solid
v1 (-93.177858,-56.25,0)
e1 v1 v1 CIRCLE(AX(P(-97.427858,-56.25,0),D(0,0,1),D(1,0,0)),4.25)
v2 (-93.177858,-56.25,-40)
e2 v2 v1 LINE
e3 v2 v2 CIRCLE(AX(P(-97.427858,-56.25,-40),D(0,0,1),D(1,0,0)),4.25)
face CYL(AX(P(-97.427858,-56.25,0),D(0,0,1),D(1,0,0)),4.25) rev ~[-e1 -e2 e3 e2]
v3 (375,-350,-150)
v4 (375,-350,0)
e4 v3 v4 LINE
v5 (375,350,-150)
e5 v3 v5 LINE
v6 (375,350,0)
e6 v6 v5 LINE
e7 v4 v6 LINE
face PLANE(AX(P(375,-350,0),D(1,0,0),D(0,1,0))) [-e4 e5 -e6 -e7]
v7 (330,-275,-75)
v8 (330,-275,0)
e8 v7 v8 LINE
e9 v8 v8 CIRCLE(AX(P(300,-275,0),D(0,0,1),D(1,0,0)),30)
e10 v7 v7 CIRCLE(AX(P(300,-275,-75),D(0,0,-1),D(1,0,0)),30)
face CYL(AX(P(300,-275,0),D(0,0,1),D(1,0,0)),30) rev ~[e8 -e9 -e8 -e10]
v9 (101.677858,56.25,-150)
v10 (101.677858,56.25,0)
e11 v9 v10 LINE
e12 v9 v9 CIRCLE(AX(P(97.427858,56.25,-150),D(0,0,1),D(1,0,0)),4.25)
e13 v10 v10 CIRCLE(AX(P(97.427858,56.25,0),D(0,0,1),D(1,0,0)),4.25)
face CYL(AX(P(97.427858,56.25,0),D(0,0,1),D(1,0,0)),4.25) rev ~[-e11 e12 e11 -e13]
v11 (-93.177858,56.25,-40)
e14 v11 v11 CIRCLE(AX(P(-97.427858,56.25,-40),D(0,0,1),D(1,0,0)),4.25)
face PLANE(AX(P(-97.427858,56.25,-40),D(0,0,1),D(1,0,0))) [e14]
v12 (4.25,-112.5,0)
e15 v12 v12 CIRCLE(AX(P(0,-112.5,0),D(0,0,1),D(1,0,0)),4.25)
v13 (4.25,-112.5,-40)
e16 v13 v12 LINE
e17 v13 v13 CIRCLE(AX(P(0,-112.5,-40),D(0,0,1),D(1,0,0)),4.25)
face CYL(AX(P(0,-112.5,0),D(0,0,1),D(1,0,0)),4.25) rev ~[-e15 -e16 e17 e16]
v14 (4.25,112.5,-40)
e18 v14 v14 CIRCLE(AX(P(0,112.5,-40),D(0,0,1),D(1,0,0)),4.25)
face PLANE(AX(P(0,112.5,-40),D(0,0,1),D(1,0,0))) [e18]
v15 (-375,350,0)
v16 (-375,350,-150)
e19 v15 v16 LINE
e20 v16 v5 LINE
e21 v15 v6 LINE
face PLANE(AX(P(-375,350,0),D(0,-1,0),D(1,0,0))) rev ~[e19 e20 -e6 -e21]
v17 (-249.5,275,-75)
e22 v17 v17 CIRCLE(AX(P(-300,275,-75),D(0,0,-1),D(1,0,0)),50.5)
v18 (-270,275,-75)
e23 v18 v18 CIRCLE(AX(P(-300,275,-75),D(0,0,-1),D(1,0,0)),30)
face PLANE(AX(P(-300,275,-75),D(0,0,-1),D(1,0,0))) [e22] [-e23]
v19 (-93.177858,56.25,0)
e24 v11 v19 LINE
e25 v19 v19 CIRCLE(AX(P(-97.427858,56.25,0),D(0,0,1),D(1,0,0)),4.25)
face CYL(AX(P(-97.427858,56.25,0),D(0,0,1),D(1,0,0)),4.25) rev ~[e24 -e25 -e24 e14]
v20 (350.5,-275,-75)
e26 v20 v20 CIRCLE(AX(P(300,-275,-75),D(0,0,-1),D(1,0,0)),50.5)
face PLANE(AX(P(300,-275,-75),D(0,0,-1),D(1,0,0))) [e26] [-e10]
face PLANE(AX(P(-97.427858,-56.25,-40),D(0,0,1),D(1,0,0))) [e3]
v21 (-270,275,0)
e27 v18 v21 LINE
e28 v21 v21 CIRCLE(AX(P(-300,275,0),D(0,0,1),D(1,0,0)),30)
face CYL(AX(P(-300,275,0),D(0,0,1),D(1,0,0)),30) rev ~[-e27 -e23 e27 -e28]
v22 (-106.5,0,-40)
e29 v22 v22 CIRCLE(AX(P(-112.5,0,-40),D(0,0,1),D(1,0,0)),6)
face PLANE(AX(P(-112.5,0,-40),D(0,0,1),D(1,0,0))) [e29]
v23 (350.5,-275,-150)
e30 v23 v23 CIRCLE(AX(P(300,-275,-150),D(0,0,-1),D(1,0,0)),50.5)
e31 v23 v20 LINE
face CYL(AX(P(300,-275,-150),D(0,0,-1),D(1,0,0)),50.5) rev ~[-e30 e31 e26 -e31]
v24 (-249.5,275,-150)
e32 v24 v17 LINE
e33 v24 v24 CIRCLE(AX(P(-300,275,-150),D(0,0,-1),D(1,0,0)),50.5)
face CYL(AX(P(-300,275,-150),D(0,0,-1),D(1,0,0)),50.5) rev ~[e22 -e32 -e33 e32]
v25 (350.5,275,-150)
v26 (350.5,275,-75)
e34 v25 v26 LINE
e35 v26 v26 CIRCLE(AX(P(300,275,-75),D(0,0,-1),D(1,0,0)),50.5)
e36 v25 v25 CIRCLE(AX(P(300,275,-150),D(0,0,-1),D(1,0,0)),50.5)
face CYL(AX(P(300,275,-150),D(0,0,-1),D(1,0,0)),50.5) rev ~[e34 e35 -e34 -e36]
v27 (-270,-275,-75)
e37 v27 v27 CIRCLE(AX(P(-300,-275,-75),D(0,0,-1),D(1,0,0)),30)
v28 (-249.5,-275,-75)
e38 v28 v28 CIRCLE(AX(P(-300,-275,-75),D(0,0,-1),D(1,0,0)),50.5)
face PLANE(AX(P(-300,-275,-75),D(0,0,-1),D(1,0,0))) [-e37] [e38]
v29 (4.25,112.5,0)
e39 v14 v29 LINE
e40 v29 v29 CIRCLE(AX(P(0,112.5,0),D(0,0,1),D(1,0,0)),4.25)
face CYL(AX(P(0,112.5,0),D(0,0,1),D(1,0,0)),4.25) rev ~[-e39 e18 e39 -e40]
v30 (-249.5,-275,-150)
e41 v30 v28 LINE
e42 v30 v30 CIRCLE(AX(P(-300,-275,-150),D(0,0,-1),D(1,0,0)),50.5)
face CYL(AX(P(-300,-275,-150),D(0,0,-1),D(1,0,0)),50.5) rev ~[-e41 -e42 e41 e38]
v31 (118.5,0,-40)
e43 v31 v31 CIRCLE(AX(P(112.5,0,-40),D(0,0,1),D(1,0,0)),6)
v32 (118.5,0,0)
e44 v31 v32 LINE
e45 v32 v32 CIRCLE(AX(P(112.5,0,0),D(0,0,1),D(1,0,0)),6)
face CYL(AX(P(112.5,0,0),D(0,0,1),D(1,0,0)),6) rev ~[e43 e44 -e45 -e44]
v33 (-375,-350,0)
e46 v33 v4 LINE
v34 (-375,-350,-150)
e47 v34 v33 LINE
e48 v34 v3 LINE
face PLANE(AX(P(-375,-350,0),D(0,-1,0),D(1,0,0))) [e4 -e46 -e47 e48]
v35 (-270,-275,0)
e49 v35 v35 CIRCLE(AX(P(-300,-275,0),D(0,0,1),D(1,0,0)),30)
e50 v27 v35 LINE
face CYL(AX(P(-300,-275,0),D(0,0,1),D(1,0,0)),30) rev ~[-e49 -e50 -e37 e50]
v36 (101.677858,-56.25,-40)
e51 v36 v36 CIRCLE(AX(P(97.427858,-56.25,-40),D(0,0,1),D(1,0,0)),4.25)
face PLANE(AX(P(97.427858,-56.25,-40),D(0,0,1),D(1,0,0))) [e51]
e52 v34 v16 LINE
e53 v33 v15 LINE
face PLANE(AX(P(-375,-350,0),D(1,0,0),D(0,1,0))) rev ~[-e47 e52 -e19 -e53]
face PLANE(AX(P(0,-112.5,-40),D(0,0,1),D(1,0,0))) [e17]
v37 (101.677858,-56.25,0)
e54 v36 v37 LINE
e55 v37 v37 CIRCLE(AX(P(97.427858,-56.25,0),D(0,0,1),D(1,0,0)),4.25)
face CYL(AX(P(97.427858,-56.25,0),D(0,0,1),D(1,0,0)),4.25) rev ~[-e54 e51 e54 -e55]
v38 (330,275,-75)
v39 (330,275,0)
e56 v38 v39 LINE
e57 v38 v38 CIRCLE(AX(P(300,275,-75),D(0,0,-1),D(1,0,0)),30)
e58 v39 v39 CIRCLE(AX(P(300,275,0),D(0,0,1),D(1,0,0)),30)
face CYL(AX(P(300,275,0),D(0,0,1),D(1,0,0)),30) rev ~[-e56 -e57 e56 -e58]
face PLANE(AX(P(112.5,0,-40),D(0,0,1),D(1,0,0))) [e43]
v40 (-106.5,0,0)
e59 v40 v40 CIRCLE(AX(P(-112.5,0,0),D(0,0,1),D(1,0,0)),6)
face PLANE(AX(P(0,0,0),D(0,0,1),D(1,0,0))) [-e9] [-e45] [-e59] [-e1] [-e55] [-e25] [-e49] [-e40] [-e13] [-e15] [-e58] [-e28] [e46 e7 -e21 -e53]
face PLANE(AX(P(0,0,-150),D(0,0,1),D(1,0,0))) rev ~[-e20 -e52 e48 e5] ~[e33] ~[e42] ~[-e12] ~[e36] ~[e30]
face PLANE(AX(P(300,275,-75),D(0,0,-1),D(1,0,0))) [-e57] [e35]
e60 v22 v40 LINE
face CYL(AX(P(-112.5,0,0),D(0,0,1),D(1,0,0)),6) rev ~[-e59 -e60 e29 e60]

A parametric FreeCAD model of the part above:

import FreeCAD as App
import Part
import Sketcher

V = App.Vector

doc = App.newDocument("Part")
body = doc.addObject("PartDesign::Body", "Body")

sketch1 = body.newObject("Sketcher::SketchObject", "Sketch")
sketch1.AttachmentSupport = (doc.getObject("XY_Plane"), [""])
sketch1.MapMode = "FlatFace"
sketch1.addGeometry(Part.LineSegment(V(-375, 350, 0), V(-375, -350, 0)), False)
sketch1.addGeometry(Part.LineSegment(V(-375, -350, 0), V(375, -350, 0)), False)
sketch1.addGeometry(Part.LineSegment(V(375, -350, 0), V(375, 350, 0)), False)
sketch1.addGeometry(Part.LineSegment(V(375, 350, 0), V(-375, 350, 0)), False)
sketch1.addGeometry(Part.Circle(V(-300, -275, 0), V(0, 0, 1), 30), False)
sketch1.addGeometry(Part.Circle(V(300, -275, 0), V(0, 0, 1), 30), False)
sketch1.addGeometry(Part.Circle(V(-300, 275, 0), V(0, 0, 1), 30), False)
sketch1.addGeometry(Part.Circle(V(97.4, 56.2, 0), V(0, 0, 1), 4.2), False)
sketch1.addGeometry(Part.Circle(V(300, 275, 0), V(0, 0, 1), 30), False)
sketch1.addConstraint(Sketcher.Constraint("Coincident", 0, 2, 1, 1))
sketch1.addConstraint(Sketcher.Constraint("Coincident", 1, 2, 2, 1))
sketch1.addConstraint(Sketcher.Constraint("Coincident", 2, 2, 3, 1))
sketch1.addConstraint(Sketcher.Constraint("Coincident", 3, 2, 0, 1))
sketch1.addConstraint(Sketcher.Constraint("Vertical", 0))
sketch1.addConstraint(Sketcher.Constraint("Horizontal", 1))
sketch1.addConstraint(Sketcher.Constraint("Vertical", 2))
sketch1.addConstraint(Sketcher.Constraint("Horizontal", 3))
sketch1.addConstraint(Sketcher.Constraint("Equal", 4, 5))
sketch1.addConstraint(Sketcher.Constraint("Equal", 5, 6))
sketch1.addConstraint(Sketcher.Constraint("Equal", 6, 8))
sketch1.addConstraint(Sketcher.Constraint("Symmetric", 5, 3, 6, 3, -1, 1))
sketch1.addConstraint(Sketcher.Constraint("Symmetric", 4, 3, 8, 3, -1, 1))
sketch1.addConstraint(Sketcher.Constraint("Symmetric", 0, 2, 2, 2, -1, 1))
sketch1.addConstraint(Sketcher.Constraint("Symmetric", 4, 3, 5, 3, -2))
sketch1.addConstraint(Sketcher.Constraint("Diameter", 4, 60.0))
sketch1.addConstraint(Sketcher.Constraint("Diameter", 7, 8.5))
sketch1.addConstraint(Sketcher.Constraint("DistanceX", 1, 1, 1, 2, 750.0))
sketch1.addConstraint(Sketcher.Constraint("DistanceY", 0, 2, 0, 1, 700.0))
sketch1.addConstraint(Sketcher.Constraint("DistanceX", 4, 3, -1, 1, 300.0))
sketch1.addConstraint(Sketcher.Constraint("DistanceY", 4, 3, -1, 1, 275.0))
sketch1.addConstraint(Sketcher.Constraint("DistanceY", -1, 1, 7, 3, 56.25))
sketch1.addConstraint(Sketcher.Constraint("DistanceX", -1, 1, 7, 3, 97.427858))
pad1 = body.newObject("PartDesign::Pad", "Pad")
pad1.Profile = sketch1
pad1.Length = 150
pad1.Reversed = True

sketch2 = body.newObject("Sketcher::SketchObject", "Sketch001")
sketch2.AttachmentSupport = (doc.getObject("XY_Plane"), [""])
sketch2.MapMode = "FlatFace"
sketch2.addGeometry(Part.Circle(V(-112.5, 0, 0), V(0, 0, 1), 6), False)
sketch2.addGeometry(Part.Circle(V(-97.4, 56.2, 0), V(0, 0, 1), 4.2), False)
sketch2.addGeometry(Part.Circle(V(0, 112.5, 0), V(0, 0, 1), 4.2), False)
sketch2.addGeometry(Part.Circle(V(97.4, 56.2, 0), V(0, 0, 1), 4.2), False)
sketch2.addGeometry(Part.Circle(V(112.5, 0, 0), V(0, 0, 1), 6), False)
sketch2.addGeometry(Part.Circle(V(97.4, -56.2, 0), V(0, 0, 1), 4.2), False)
sketch2.addGeometry(Part.Circle(V(0, -112.5, 0), V(0, 0, 1), 4.2), False)
sketch2.addGeometry(Part.Circle(V(-97.4, -56.2, 0), V(0, 0, 1), 4.2), False)
sketch2.addConstraint(Sketcher.Constraint("Equal", 1, 2))
sketch2.addConstraint(Sketcher.Constraint("Equal", 2, 3))
sketch2.addConstraint(Sketcher.Constraint("Equal", 0, 4))
sketch2.addConstraint(Sketcher.Constraint("Equal", 3, 5))
sketch2.addConstraint(Sketcher.Constraint("Equal", 5, 6))
sketch2.addConstraint(Sketcher.Constraint("Equal", 6, 7))
sketch2.addConstraint(Sketcher.Constraint("Symmetric", 0, 3, 4, 3, -1, 1))
sketch2.addConstraint(Sketcher.Constraint("Symmetric", 1, 3, 5, 3, -1, 1))
sketch2.addConstraint(Sketcher.Constraint("Symmetric", 2, 3, 6, 3, -1, 1))
sketch2.addConstraint(Sketcher.Constraint("Symmetric", 3, 3, 7, 3, -1, 1))
sketch2.addConstraint(Sketcher.Constraint("Symmetric", 1, 3, 3, 3, -2))
sketch2.addConstraint(Sketcher.Constraint("PointOnObject", 0, 3, -1))
sketch2.addConstraint(Sketcher.Constraint("PointOnObject", 2, 3, -2))
sketch2.addConstraint(Sketcher.Constraint("Diameter", 0, 12.0))
sketch2.addConstraint(Sketcher.Constraint("Diameter", 1, 8.5))
sketch2.addConstraint(Sketcher.Constraint("DistanceX", 0, 3, 4, 3, 225.0))
sketch2.addConstraint(Sketcher.Constraint("DistanceY", -1, 1, 2, 3, 112.5))
sketch2.addConstraint(Sketcher.Constraint("DistanceY", 5, 3, 3, 3, 112.5))
sketch2.addConstraint(Sketcher.Constraint("DistanceX", 1, 3, -1, 1, 97.427858))
pocket1 = body.newObject("PartDesign::Pocket", "Pocket")
pocket1.Profile = sketch2
pocket1.Length = 40
body2 = doc.addObject("PartDesign::Body", "Body001")

sketch3 = body2.newObject("Sketcher::SketchObject", "Sketch002")
sketch3.AttachmentSupport = (doc.getObject("XY_Plane001"), [""])
sketch3.MapMode = "FlatFace"
sketch3.addGeometry(Part.LineSegment(V(-375, 350, 0), V(-375, -350, 0)), False)
sketch3.addGeometry(Part.LineSegment(V(-375, -350, 0), V(375, -350, 0)), False)
sketch3.addGeometry(Part.LineSegment(V(375, -350, 0), V(375, 350, 0)), False)
sketch3.addGeometry(Part.LineSegment(V(375, 350, 0), V(-375, 350, 0)), False)
sketch3.addGeometry(Part.Circle(V(-300, -275, 0), V(0, 0, 1), 30), False)
sketch3.addGeometry(Part.Circle(V(-97.4, -56.2, 0), V(0, 0, 1), 4.2), False)
sketch3.addGeometry(Part.Circle(V(300, -275, 0), V(0, 0, 1), 30), False)
sketch3.addGeometry(Part.Circle(V(0, -112.5, 0), V(0, 0, 1), 4.2), False)
sketch3.addGeometry(Part.Circle(V(97.4, -56.2, 0), V(0, 0, 1), 4.2), False)
sketch3.addGeometry(Part.Circle(V(-112.5, 0, 0), V(0, 0, 1), 6), False)
sketch3.addGeometry(Part.Circle(V(-97.4, 56.2, 0), V(0, 0, 1), 4.2), False)
sketch3.addGeometry(Part.Circle(V(-300, 275, 0), V(0, 0, 1), 30), False)
sketch3.addGeometry(Part.Circle(V(112.5, 0, 0), V(0, 0, 1), 6), False)
sketch3.addGeometry(Part.Circle(V(97.4, 56.2, 0), V(0, 0, 1), 4.2), False)
sketch3.addGeometry(Part.Circle(V(0, 112.5, 0), V(0, 0, 1), 4.2), False)
sketch3.addGeometry(Part.Circle(V(300, 275, 0), V(0, 0, 1), 30), False)
sketch3.addConstraint(Sketcher.Constraint("Coincident", 0, 2, 1, 1))
sketch3.addConstraint(Sketcher.Constraint("Coincident", 1, 2, 2, 1))
sketch3.addConstraint(Sketcher.Constraint("Coincident", 2, 2, 3, 1))
sketch3.addConstraint(Sketcher.Constraint("Coincident", 3, 2, 0, 1))
sketch3.addConstraint(Sketcher.Constraint("Vertical", 0))
sketch3.addConstraint(Sketcher.Constraint("Horizontal", 1))
sketch3.addConstraint(Sketcher.Constraint("Vertical", 2))
sketch3.addConstraint(Sketcher.Constraint("Horizontal", 3))
sketch3.addConstraint(Sketcher.Constraint("Equal", 4, 6))
sketch3.addConstraint(Sketcher.Constraint("Equal", 5, 7))
sketch3.addConstraint(Sketcher.Constraint("Equal", 7, 8))
sketch3.addConstraint(Sketcher.Constraint("Equal", 8, 10))
sketch3.addConstraint(Sketcher.Constraint("Equal", 6, 11))
sketch3.addConstraint(Sketcher.Constraint("Equal", 9, 12))
sketch3.addConstraint(Sketcher.Constraint("Equal", 10, 13))
sketch3.addConstraint(Sketcher.Constraint("Equal", 13, 14))
sketch3.addConstraint(Sketcher.Constraint("Equal", 11, 15))
sketch3.addConstraint(Sketcher.Constraint("Symmetric", 8, 3, 10, 3, -1, 1))
sketch3.addConstraint(Sketcher.Constraint("Symmetric", 6, 3, 11, 3, -1, 1))
sketch3.addConstraint(Sketcher.Constraint("Symmetric", 9, 3, 12, 3, -1, 1))
sketch3.addConstraint(Sketcher.Constraint("Symmetric", 5, 3, 13, 3, -1, 1))
sketch3.addConstraint(Sketcher.Constraint("Symmetric", 7, 3, 14, 3, -1, 1))
sketch3.addConstraint(Sketcher.Constraint("Symmetric", 4, 3, 15, 3, -1, 1))
sketch3.addConstraint(Sketcher.Constraint("Symmetric", 0, 2, 2, 2, -1, 1))
sketch3.addConstraint(Sketcher.Constraint("Symmetric", 4, 3, 6, 3, -2))
sketch3.addConstraint(Sketcher.Constraint("Symmetric", 5, 3, 8, 3, -2))
sketch3.addConstraint(Sketcher.Constraint("PointOnObject", 7, 3, -2))
sketch3.addConstraint(Sketcher.Constraint("PointOnObject", 9, 3, -1))
sketch3.addConstraint(Sketcher.Constraint("Diameter", 4, 60.0))
sketch3.addConstraint(Sketcher.Constraint("Diameter", 9, 12.0))
sketch3.addConstraint(Sketcher.Constraint("Diameter", 5, 8.5))
sketch3.addConstraint(Sketcher.Constraint("DistanceX", 1, 1, 1, 2, 750.0))
sketch3.addConstraint(Sketcher.Constraint("DistanceY", 0, 2, 0, 1, 700.0))
sketch3.addConstraint(Sketcher.Constraint("DistanceX", 4, 3, -1, 1, 300.0))
sketch3.addConstraint(Sketcher.Constraint("DistanceY", 4, 3, -1, 1, 275.0))
sketch3.addConstraint(Sketcher.Constraint("DistanceX", 9, 3, 12, 3, 225.0))
sketch3.addConstraint(Sketcher.Constraint("DistanceY", 7, 3, -1, 1, 112.5))
sketch3.addConstraint(Sketcher.Constraint("DistanceY", 5, 3, 10, 3, 112.5))
sketch3.addConstraint(Sketcher.Constraint("DistanceX", 5, 3, -1, 1, 97.427858))
pad2 = body2.newObject("PartDesign::Pad", "Pad001")
pad2.Profile = sketch3
pad2.Length = 130
pad2.Reversed = True
body3 = doc.addObject("PartDesign::Body", "Body002")
doc.recompute()

body2.Placement = App.Placement(V(0, 0, -20), App.Rotation(V(0, 0, 1), 0))
boolean = body3.newObject("PartDesign::Boolean", "Boolean")
boolean.Type = "Fuse"
boolean.addObjects([body2])
doc.recompute()

boolean2 = body3.newObject("PartDesign::Boolean", "Boolean001")
boolean2.Type = "Fuse"
boolean2.addObjects([body])

sketch4 = body3.newObject("Sketcher::SketchObject", "Sketch003")
sketch4.AttachmentSupport = (doc.getObject("XY_Plane002"), [""])
sketch4.MapMode = "FlatFace"
sketch4.AttachmentOffset = App.Placement(V(0, 0, -150), App.Rotation())
sketch4.addGeometry(Part.Circle(V(-300, -275, 0), V(0, 0, 1), 50), False)
sketch4.addGeometry(Part.Circle(V(-300, -275, 0), V(0, 0, 1), 30), False)
sketch4.addGeometry(Part.Circle(V(-300, 275, 0), V(0, 0, 1), 50), False)
sketch4.addGeometry(Part.Circle(V(-300, 275, 0), V(0, 0, 1), 30), False)
sketch4.addGeometry(Part.Circle(V(300, 275, 0), V(0, 0, 1), 50), False)
sketch4.addGeometry(Part.Circle(V(300, 275, 0), V(0, 0, 1), 30), False)
sketch4.addGeometry(Part.Circle(V(300, -275, 0), V(0, 0, 1), 50), False)
sketch4.addGeometry(Part.Circle(V(300, -275, 0), V(0, 0, 1), 30), False)
sketch4.addConstraint(Sketcher.Constraint("Coincident", 1, 3, 0, 3))
sketch4.addConstraint(Sketcher.Constraint("Coincident", 3, 3, 2, 3))
sketch4.addConstraint(Sketcher.Constraint("Coincident", 5, 3, 4, 3))
sketch4.addConstraint(Sketcher.Constraint("Coincident", 7, 3, 6, 3))
sketch4.addConstraint(Sketcher.Constraint("Equal", 0, 2))
sketch4.addConstraint(Sketcher.Constraint("Equal", 1, 3))
sketch4.addConstraint(Sketcher.Constraint("Equal", 2, 4))
sketch4.addConstraint(Sketcher.Constraint("Equal", 3, 5))
sketch4.addConstraint(Sketcher.Constraint("Equal", 4, 6))
sketch4.addConstraint(Sketcher.Constraint("Equal", 5, 7))
sketch4.addConstraint(Sketcher.Constraint("Symmetric", 0, 3, 4, 3, -1, 1))
sketch4.addConstraint(Sketcher.Constraint("Symmetric", 2, 3, 6, 3, -1, 1))
sketch4.addConstraint(Sketcher.Constraint("Symmetric", 2, 3, 4, 3, -2))
sketch4.addConstraint(Sketcher.Constraint("Diameter", 0, 101.0))
sketch4.addConstraint(Sketcher.Constraint("Diameter", 1, 60.0))
sketch4.addConstraint(Sketcher.Constraint("DistanceX", 0, 3, -1, 1, 300.0))
sketch4.addConstraint(Sketcher.Constraint("DistanceY", 0, 3, -1, 1, 275.0))
pocket2 = body3.newObject("PartDesign::Pocket", "Pocket001")
pocket2.Profile = sketch4
pocket2.Length = 75
pocket2.Reversed = True

doc.recompute()
